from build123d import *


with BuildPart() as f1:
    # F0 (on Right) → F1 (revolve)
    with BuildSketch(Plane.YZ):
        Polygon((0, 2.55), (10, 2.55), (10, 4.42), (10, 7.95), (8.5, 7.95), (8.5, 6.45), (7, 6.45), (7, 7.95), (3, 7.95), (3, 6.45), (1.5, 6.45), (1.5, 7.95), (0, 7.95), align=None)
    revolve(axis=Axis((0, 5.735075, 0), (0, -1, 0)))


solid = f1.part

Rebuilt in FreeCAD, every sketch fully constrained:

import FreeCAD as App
import Part
import Sketcher
from FreeCAD import Vector


def add_polygon(sketch, points):
    """Adds a closed chain of lines whose ends are joined by coincident constraints."""
    first, n = sketch.GeometryCount, len(points)
    for a, b in zip(points, points[1:] + points[:1]):
        sketch.addGeometry(Part.LineSegment(App.Vector(*a, 0), App.Vector(*b, 0)), False)
    for i in range(n):
        sketch.addConstraint(Sketcher.Constraint("Coincident", first + i, 2, first + (i + 1) % n, 1))

doc = App.newDocument("Part")
body = doc.addObject("PartDesign::Body", "Body")

# Sketch on YZ plane
sketch1 = doc.addObject("Sketcher::SketchObject", "Sketch")
body.addObject(sketch1)
sketch1.AttachmentSupport = (doc.YZ_Plane, [""])
sketch1.MapMode = "FlatFace"
add_polygon(sketch1, [(0, 2.5), (10, 2.5), (10, 8), (8.5, 8), (8.5, 6.5), (7, 6.5), (7, 8), (3, 8), (3, 6.5), (1.5, 6.5), (1.5, 8), (0, 8)])  # lines 0-11
sketch1.addConstraint([
    Sketcher.Constraint("Horizontal", 0),
    Sketcher.Constraint("Vertical", 1),
    Sketcher.Constraint("Horizontal", 2),
    Sketcher.Constraint("Vertical", 3),
    Sketcher.Constraint("Horizontal", 4),
    Sketcher.Constraint("Vertical", 5),
    Sketcher.Constraint("Horizontal", 6),
    Sketcher.Constraint("Vertical", 7),
    Sketcher.Constraint("Horizontal", 8),
    Sketcher.Constraint("Vertical", 9),
    Sketcher.Constraint("Horizontal", 10),
    Sketcher.Constraint("Vertical", 11),
    Sketcher.Constraint("PointOnObject", 10, 2, -2),
    Sketcher.Constraint("Horizontal", 2, 2, 5, 2),
    Sketcher.Constraint("Horizontal", 4, 2, 7, 2),
    Sketcher.Constraint("Horizontal", 6, 2, 9, 2),
    Sketcher.Constraint("Equal", 2, 4),
    Sketcher.Constraint("Equal", 4, 8),
    Sketcher.Constraint("Equal", 8, 10),
    Sketcher.Constraint("Equal", 10, 3),
    Sketcher.Constraint("DistanceX", 0, 1, 0, 2, 10.0),
    Sketcher.Constraint("DistanceX", 6, 2, 6, 1, 4.0),
    Sketcher.Constraint("DistanceY", 1, 1, 1, 2, 5.4),
    Sketcher.Constraint("DistanceY", -1, 1, 0, 2, 2.55),
])
revolution = doc.addObject("PartDesign::Revolution", "Revolution")
body.addObject(revolution)
revolution.Profile = sketch1
revolution.ReferenceAxis = (sketch1, ["H_Axis"])
revolution.Angle = 360

doc.recompute()
